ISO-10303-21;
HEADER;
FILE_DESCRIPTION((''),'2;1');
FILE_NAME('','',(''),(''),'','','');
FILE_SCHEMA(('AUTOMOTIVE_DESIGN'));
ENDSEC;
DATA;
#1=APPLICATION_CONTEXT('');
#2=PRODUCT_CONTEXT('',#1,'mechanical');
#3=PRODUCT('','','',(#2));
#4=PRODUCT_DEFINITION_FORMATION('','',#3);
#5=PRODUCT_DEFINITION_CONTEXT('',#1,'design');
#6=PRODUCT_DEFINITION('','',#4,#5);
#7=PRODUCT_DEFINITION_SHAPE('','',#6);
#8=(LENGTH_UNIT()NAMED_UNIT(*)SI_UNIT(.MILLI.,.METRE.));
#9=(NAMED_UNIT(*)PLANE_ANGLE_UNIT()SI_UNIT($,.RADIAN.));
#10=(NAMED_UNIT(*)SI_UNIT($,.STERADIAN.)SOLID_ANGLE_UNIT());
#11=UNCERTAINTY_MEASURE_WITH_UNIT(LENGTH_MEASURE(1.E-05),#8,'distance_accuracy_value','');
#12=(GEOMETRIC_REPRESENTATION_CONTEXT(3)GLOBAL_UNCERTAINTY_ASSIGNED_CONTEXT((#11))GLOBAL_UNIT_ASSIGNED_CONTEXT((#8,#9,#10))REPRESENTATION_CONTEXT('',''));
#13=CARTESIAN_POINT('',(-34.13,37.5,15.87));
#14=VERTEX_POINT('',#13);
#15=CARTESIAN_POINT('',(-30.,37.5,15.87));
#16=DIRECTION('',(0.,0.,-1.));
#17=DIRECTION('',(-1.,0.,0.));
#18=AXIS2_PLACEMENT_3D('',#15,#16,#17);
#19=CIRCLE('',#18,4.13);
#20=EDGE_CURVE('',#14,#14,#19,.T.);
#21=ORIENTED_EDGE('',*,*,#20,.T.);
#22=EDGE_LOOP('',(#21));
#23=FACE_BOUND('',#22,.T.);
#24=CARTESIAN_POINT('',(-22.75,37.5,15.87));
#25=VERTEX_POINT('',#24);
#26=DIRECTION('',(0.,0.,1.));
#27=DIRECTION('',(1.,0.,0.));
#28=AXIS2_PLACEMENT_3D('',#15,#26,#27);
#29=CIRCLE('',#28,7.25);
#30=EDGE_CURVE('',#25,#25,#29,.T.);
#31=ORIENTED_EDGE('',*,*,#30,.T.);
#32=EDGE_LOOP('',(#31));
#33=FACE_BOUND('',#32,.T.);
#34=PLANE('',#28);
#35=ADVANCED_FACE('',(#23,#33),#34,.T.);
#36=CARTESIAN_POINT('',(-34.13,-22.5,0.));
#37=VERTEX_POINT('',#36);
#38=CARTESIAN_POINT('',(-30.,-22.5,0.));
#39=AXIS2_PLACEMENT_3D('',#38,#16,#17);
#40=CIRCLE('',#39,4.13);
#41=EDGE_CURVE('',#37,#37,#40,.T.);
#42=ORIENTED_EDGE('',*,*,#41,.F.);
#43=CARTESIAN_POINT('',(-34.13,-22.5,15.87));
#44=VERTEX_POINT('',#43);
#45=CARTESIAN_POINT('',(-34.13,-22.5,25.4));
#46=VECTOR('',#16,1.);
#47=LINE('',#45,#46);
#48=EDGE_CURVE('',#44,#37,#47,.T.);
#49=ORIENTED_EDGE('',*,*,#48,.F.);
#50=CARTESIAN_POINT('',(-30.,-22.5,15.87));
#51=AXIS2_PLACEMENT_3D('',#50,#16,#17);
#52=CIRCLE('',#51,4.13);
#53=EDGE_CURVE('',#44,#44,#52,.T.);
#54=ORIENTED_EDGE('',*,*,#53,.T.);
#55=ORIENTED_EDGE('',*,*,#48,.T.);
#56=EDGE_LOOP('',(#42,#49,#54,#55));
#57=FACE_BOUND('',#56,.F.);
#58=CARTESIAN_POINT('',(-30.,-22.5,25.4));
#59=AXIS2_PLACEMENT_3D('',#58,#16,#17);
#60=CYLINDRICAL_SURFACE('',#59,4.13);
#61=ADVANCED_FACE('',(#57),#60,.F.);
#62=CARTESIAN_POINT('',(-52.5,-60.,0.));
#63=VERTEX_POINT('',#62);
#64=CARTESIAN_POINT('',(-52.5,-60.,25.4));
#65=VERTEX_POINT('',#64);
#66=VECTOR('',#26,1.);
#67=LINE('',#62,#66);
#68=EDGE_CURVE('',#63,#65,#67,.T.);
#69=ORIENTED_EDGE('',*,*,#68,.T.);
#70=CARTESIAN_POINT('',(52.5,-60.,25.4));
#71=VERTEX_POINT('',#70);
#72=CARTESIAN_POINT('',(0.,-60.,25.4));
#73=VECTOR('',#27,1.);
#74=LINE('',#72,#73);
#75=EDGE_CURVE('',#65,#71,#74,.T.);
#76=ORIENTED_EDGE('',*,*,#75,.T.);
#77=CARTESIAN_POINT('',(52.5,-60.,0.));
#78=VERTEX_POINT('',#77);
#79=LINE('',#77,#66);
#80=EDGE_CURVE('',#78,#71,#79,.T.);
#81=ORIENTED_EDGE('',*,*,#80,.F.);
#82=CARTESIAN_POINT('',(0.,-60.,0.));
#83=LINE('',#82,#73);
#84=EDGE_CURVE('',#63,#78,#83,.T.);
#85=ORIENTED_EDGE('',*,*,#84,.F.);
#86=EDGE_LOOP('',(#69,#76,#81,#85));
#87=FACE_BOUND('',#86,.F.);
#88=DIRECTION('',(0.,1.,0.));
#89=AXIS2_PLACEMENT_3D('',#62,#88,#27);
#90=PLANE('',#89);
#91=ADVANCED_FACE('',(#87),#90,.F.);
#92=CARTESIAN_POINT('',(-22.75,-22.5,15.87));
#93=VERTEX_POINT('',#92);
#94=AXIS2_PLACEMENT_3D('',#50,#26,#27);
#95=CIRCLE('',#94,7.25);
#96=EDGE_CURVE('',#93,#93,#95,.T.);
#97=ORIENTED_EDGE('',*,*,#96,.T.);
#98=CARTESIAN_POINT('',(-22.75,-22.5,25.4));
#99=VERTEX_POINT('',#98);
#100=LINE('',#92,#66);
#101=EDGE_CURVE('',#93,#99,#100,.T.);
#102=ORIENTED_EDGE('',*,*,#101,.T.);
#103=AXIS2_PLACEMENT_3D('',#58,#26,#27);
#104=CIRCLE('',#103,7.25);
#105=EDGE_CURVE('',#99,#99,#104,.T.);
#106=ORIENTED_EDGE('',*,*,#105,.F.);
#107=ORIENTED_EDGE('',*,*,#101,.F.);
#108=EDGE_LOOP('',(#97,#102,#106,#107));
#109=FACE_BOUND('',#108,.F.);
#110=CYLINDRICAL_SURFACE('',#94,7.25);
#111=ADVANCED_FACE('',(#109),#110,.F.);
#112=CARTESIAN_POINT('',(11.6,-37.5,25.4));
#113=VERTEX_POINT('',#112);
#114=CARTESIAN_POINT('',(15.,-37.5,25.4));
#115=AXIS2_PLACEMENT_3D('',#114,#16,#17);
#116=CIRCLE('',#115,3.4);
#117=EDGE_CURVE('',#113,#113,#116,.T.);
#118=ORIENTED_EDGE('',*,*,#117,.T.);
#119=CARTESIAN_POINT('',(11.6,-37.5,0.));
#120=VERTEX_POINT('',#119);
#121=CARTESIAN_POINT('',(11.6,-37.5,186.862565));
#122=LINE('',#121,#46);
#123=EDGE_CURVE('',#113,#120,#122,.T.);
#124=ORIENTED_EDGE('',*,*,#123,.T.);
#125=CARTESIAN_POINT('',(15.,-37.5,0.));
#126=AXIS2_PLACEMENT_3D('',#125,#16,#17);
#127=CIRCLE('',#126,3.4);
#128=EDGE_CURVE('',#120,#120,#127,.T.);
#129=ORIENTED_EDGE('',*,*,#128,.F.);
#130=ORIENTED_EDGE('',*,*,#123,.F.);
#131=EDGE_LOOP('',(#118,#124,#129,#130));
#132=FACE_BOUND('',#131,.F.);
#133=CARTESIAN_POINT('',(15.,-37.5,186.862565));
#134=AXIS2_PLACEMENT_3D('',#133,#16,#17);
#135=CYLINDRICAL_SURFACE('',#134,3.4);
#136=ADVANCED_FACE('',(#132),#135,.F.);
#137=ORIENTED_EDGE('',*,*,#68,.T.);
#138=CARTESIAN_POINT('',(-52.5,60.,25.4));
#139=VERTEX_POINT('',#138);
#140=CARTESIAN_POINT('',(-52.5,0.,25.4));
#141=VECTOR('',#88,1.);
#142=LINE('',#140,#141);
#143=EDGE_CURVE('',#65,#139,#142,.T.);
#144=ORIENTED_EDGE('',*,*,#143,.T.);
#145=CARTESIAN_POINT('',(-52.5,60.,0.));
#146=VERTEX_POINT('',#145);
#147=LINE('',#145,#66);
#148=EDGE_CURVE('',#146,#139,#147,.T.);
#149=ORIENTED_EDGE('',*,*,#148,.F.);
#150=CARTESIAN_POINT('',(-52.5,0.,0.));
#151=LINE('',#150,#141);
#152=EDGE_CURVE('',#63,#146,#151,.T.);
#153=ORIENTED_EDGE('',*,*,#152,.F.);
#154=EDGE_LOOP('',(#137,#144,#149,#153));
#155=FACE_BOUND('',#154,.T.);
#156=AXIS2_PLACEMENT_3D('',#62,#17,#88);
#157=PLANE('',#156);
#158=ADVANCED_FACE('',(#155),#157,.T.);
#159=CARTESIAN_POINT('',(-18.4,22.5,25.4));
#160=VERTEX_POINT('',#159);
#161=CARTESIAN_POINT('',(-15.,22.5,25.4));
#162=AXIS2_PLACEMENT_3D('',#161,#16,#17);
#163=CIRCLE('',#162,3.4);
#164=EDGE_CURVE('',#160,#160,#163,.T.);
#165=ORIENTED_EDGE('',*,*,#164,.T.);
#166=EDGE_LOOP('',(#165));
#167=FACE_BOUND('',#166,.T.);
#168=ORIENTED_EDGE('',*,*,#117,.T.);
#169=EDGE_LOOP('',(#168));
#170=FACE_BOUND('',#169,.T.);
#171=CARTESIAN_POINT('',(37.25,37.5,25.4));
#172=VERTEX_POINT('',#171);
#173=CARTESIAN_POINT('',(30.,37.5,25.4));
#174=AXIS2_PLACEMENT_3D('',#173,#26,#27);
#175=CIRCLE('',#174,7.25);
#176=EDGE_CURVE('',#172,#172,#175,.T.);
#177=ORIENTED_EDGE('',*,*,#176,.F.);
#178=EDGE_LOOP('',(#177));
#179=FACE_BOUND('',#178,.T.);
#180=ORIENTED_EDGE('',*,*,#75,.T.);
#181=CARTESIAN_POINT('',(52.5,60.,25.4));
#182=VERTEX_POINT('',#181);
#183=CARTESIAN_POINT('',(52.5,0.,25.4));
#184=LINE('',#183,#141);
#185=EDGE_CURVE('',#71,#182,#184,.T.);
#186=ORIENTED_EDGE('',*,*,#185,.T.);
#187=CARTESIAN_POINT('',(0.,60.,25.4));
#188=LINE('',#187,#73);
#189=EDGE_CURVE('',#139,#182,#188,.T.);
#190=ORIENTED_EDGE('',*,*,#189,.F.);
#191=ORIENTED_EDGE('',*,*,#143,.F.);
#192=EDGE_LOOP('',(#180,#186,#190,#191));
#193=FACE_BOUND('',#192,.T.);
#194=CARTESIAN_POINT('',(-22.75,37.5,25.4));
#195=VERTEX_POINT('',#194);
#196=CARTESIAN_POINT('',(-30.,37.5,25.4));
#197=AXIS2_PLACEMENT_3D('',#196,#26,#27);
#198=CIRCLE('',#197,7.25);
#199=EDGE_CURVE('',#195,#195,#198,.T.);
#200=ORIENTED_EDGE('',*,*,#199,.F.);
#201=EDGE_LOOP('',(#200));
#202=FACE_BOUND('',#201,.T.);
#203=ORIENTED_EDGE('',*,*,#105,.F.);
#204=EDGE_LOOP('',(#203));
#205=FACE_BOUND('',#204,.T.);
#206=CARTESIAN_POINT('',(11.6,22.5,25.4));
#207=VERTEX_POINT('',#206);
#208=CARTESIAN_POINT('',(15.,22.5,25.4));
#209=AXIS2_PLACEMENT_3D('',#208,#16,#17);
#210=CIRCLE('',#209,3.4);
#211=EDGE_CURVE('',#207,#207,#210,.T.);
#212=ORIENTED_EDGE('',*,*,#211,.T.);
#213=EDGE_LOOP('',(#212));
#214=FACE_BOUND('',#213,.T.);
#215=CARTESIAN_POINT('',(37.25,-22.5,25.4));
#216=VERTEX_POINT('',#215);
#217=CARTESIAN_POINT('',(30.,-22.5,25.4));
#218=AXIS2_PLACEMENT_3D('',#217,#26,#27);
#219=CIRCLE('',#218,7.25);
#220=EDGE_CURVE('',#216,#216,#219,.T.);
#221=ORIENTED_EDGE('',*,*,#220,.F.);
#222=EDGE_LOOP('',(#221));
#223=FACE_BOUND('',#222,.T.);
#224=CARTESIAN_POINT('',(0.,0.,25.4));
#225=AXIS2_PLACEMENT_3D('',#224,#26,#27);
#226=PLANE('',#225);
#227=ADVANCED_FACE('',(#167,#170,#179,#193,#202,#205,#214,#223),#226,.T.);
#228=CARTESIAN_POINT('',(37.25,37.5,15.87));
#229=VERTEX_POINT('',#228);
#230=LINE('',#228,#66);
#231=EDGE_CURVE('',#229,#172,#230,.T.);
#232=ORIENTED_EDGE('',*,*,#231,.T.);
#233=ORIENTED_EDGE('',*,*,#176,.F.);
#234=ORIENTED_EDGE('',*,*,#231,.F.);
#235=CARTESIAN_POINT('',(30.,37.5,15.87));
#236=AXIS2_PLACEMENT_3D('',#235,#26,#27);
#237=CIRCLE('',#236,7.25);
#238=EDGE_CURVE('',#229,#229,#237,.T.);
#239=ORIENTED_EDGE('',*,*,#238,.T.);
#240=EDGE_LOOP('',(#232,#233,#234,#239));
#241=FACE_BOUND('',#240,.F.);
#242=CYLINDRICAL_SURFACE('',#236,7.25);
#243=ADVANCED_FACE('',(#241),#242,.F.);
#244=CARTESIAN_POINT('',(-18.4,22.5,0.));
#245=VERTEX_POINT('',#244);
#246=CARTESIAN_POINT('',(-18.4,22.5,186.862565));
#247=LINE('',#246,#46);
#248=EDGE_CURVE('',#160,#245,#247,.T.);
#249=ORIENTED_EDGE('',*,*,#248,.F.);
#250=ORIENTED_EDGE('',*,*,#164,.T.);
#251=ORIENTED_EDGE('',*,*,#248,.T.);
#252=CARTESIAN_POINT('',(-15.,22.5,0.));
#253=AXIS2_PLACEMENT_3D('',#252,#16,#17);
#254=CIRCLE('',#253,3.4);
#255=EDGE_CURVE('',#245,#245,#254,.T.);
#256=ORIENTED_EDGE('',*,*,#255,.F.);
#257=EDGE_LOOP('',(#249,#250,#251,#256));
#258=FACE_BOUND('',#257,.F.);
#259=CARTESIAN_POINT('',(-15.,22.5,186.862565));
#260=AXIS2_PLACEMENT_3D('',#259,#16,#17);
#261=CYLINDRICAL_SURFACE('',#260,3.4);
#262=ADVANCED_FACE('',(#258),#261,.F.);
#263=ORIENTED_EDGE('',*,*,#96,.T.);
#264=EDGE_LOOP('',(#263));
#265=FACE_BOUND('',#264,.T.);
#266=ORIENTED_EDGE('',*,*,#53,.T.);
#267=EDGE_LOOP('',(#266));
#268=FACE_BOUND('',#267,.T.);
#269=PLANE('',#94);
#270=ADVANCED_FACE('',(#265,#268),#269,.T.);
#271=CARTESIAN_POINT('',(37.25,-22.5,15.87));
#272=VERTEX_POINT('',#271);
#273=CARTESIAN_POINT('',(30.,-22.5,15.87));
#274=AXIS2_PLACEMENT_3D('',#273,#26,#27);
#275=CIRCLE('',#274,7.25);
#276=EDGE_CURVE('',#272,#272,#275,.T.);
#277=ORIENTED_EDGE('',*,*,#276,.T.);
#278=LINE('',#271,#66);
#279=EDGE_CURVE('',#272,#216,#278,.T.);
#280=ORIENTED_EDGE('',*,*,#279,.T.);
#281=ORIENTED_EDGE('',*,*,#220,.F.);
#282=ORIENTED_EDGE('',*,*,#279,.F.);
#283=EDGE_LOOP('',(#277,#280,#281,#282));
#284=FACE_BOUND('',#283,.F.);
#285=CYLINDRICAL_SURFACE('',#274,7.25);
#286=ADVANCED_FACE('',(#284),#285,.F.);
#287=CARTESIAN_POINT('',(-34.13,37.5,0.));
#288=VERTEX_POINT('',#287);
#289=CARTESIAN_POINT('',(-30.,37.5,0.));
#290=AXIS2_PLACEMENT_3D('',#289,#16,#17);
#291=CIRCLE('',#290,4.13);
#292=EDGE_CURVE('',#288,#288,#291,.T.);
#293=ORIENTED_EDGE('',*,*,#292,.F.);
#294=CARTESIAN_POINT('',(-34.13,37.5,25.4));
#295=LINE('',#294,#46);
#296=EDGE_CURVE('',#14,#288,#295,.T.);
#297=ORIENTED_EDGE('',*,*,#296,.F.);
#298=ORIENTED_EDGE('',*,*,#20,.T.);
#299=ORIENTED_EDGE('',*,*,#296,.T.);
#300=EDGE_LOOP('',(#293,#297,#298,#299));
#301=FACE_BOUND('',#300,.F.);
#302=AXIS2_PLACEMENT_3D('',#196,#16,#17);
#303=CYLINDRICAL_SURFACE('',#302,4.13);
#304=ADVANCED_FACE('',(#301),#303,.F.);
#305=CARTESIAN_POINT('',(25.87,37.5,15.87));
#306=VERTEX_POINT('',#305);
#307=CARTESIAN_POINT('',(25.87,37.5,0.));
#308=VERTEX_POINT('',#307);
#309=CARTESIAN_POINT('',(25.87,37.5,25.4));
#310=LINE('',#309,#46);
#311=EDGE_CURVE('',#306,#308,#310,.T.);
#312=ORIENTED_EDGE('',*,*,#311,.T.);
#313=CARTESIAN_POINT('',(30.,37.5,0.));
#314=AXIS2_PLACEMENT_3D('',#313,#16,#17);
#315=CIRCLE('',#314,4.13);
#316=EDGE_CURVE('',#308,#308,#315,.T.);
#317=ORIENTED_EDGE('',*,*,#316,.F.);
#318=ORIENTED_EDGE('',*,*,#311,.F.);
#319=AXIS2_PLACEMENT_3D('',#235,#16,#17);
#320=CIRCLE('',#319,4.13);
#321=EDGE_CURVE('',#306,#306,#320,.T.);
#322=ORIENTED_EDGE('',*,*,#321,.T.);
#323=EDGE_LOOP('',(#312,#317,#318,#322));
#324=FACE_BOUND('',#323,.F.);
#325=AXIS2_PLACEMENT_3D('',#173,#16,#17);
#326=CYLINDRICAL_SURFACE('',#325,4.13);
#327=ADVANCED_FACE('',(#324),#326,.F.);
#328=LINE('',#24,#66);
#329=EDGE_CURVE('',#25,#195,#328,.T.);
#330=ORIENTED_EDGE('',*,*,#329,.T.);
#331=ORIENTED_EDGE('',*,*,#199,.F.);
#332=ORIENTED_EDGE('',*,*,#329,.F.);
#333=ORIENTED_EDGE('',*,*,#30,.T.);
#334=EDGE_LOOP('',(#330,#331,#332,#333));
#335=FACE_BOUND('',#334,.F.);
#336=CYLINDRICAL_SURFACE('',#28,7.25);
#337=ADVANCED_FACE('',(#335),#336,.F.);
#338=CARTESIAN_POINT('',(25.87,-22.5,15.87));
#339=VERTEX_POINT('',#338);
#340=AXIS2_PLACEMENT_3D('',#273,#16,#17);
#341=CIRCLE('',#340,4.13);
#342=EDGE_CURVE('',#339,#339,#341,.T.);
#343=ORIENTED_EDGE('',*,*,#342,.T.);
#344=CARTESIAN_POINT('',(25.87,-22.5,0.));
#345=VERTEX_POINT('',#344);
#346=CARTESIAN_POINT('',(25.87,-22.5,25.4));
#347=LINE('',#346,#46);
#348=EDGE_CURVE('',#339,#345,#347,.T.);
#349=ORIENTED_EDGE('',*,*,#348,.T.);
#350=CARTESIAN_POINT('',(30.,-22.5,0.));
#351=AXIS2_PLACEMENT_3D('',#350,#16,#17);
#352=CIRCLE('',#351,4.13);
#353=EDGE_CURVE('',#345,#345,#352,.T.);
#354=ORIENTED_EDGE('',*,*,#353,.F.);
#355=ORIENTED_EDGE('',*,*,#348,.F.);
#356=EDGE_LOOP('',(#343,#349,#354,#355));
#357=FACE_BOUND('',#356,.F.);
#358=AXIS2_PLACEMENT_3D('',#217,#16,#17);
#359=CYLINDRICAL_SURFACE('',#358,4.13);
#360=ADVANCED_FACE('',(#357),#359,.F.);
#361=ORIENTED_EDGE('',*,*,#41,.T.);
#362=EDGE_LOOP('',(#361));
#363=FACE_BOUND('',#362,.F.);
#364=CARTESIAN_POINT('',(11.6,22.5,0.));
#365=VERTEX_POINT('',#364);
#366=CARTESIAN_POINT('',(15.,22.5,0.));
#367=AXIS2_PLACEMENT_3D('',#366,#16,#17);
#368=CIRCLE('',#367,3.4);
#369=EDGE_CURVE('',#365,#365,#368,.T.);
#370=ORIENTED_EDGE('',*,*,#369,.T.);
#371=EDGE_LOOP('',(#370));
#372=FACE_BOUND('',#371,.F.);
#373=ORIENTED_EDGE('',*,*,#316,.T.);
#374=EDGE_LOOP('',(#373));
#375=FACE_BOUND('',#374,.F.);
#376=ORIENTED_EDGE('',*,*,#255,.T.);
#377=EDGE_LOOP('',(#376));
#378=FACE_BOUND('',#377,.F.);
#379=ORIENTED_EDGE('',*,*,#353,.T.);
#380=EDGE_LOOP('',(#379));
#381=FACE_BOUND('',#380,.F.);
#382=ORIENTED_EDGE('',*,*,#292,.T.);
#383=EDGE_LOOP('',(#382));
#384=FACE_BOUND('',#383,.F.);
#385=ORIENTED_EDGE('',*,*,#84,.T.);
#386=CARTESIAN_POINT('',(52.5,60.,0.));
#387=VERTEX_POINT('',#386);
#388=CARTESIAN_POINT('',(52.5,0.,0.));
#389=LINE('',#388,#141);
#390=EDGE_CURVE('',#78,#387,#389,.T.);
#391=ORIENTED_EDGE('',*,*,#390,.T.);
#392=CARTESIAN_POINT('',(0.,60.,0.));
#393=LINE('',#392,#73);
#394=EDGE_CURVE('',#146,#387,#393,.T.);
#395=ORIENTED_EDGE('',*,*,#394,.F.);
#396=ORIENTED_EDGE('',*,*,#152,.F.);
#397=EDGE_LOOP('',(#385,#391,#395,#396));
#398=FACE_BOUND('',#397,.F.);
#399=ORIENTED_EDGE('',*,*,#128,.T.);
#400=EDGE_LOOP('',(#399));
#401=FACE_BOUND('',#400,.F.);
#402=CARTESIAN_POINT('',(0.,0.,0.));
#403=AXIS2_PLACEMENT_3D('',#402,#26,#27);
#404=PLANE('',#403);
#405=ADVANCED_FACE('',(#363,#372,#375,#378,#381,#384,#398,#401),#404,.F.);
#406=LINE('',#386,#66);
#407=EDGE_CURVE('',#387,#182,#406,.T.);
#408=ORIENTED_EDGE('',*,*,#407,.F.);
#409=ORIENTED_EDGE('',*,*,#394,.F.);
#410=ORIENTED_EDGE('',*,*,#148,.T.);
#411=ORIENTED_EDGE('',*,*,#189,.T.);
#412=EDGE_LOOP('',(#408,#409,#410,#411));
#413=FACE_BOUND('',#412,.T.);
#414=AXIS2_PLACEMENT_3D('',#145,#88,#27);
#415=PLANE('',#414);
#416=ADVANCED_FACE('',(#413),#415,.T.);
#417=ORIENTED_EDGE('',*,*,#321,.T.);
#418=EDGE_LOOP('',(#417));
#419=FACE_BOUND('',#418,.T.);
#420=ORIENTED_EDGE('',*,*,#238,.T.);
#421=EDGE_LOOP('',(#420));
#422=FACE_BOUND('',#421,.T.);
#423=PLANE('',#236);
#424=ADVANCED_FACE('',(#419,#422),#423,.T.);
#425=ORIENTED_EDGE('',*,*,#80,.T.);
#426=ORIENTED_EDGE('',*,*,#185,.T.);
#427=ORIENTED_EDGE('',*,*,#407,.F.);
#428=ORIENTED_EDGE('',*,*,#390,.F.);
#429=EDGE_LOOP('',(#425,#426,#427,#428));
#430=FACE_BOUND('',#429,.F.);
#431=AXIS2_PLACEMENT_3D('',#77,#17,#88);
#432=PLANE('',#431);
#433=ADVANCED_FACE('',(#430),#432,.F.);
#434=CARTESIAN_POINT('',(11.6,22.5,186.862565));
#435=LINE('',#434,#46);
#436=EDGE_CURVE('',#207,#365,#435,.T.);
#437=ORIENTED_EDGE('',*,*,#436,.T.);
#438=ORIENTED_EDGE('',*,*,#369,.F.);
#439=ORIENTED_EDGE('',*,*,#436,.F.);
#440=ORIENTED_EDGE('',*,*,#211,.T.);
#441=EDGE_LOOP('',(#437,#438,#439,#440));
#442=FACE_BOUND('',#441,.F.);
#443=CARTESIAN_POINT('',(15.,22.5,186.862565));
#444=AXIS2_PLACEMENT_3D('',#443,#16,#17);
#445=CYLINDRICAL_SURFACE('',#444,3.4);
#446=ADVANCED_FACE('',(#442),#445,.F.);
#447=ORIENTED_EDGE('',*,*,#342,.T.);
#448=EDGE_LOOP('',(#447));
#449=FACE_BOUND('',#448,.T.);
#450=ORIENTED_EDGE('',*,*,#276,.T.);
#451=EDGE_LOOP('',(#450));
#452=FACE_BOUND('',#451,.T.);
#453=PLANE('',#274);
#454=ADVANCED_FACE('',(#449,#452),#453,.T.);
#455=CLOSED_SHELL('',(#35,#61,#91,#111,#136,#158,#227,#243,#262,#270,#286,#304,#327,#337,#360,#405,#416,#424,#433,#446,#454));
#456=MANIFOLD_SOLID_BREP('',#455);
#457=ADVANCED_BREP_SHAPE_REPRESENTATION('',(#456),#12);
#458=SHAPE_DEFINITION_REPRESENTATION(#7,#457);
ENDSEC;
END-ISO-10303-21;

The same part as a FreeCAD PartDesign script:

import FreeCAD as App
import Part
import Sketcher
Q = App.Units.Quantity


def add_polygon(sketch, points):
    """Adds a closed chain of lines whose ends are joined by coincident constraints."""
    first, n = sketch.GeometryCount, len(points)
    for a, b in zip(points, points[1:] + points[:1]):
        sketch.addGeometry(Part.LineSegment(App.Vector(*a, 0), App.Vector(*b, 0)), False)
    for i in range(n):
        sketch.addConstraint(Sketcher.Constraint("Coincident", first + i, 2, first + (i + 1) % n, 1))

doc = App.newDocument("Part")
body = doc.addObject("PartDesign::Body", "Body")

# Sketch on XY plane
sketch1 = body.newObject("Sketcher::SketchObject", "Sketch")
sketch1.AttachmentSupport = (doc.getObject("XY_Plane"), [""])
sketch1.MapMode = "FlatFace"
add_polygon(sketch1, [(-52, 60), (-52, -60), (52, -60), (52, 60)])  # lines 0-3
sketch1.addConstraint(Sketcher.Constraint("Vertical", 0))
sketch1.addConstraint(Sketcher.Constraint("Horizontal", 1))
sketch1.addConstraint(Sketcher.Constraint("Vertical", 2))
sketch1.addConstraint(Sketcher.Constraint("Horizontal", 3))
sketch1.addConstraint(Sketcher.Constraint("Symmetric", 0, 2, 2, 2, -1, 1))
sketch1.addConstraint(Sketcher.Constraint("DistanceX", 1, 1, 1, 2, Q("105 mm")))
sketch1.addConstraint(Sketcher.Constraint("DistanceY", 0, 2, 0, 1, Q("120 mm")))
pad1 = body.newObject("PartDesign::Pad", "Pad")
pad1.Profile = sketch1
pad1.Length = 25.4

# Sketch on XY plane
sketch2 = body.newObject("Sketcher::SketchObject", "Sketch001")
sketch2.AttachmentSupport = (doc.getObject("XY_Plane"), [""])
sketch2.MapMode = "FlatFace"
sketch2.AttachmentOffset = App.Placement(App.Vector(0, 0, 25.4), App.Rotation())
sketch2.addGeometry(Part.Circle(App.Vector(-30, 37.5, 0), App.Vector(0, 0, 1), 4.1), False)
sketch2.addGeometry(Part.Circle(App.Vector(30, 37.5, 0), App.Vector(0, 0, 1), 4.1), False)
sketch2.addGeometry(Part.Circle(App.Vector(30, -22.5, 0), App.Vector(0, 0, 1), 4.1), False)
sketch2.addGeometry(Part.Circle(App.Vector(-30, -22.5, 0), App.Vector(0, 0, 1), 4.1), False)
sketch2.addConstraint(Sketcher.Constraint("Equal", 0, 1))
sketch2.addConstraint(Sketcher.Constraint("Equal", 1, 2))
sketch2.addConstraint(Sketcher.Constraint("Equal", 2, 3))
sketch2.addConstraint(Sketcher.Constraint("Symmetric", 0, 3, 1, 3, -2))
sketch2.addConstraint(Sketcher.Constraint("Symmetric", 2, 3, 3, 3, -2))
sketch2.addConstraint(Sketcher.Constraint("Vertical", 1, 3, 2, 3))
sketch2.addConstraint(Sketcher.Constraint("Diameter", 0, Q("8.26 mm")))
sketch2.addConstraint(Sketcher.Constraint("DistanceX", 0, 3, -1, 1, Q("30 mm")))
sketch2.addConstraint(Sketcher.Constraint("DistanceY", 2, 3, 1, 3, Q("60 mm")))
sketch2.addConstraint(Sketcher.Constraint("DistanceY", -1, 1, 0, 3, Q("37.5 mm")))
doc.recompute()
hole = body.newObject("PartDesign::Hole", "Hole")
hole.Profile = sketch2
hole.ThreadType = "None"
hole.Diameter = 8.26
hole.DepthType = "ThroughAll"
hole.HoleCutType = "Counterbore"
hole.HoleCutDiameter = 14.5
hole.HoleCutDepth = 9.53

# Sketch on XY plane
sketch3 = body.newObject("Sketcher::SketchObject", "Sketch002")
sketch3.AttachmentSupport = (doc.getObject("XY_Plane"), [""])
sketch3.MapMode = "FlatFace"
sketch3.AttachmentOffset = App.Placement(App.Vector(0, 0, 25.4), App.Rotation())
sketch3.addGeometry(Part.Circle(App.Vector(15, -37.5, 0), App.Vector(0, 0, 1), 3.4), False)
sketch3.addGeometry(Part.Circle(App.Vector(15, 22.5, 0), App.Vector(0, 0, 1), 3.4), False)
sketch3.addGeometry(Part.Circle(App.Vector(-15, 22.5, 0), App.Vector(0, 0, 1), 3.4), False)
sketch3.addConstraint(Sketcher.Constraint("Equal", 0, 1))
sketch3.addConstraint(Sketcher.Constraint("Equal", 1, 2))
sketch3.addConstraint(Sketcher.Constraint("Symmetric", 1, 3, 2, 3, -2))
sketch3.addConstraint(Sketcher.Constraint("Vertical", 0, 3, 1, 3))
sketch3.addConstraint(Sketcher.Constraint("Diameter", 0, Q("6.8 mm")))
sketch3.addConstraint(Sketcher.Constraint("DistanceX", -1, 1, 0, 3, Q("15 mm")))
sketch3.addConstraint(Sketcher.Constraint("DistanceY", 0, 3, 1, 3, Q("60 mm")))
sketch3.addConstraint(Sketcher.Constraint("DistanceY", 0, 3, -1, 1, Q("37.5 mm")))
doc.recompute()
hole2 = body.newObject("PartDesign::Hole", "Hole001")
hole2.Profile = sketch3
hole2.ThreadType = "None"
hole2.Diameter = 6.8
hole2.DepthType = "ThroughAll"

doc.recompute()
